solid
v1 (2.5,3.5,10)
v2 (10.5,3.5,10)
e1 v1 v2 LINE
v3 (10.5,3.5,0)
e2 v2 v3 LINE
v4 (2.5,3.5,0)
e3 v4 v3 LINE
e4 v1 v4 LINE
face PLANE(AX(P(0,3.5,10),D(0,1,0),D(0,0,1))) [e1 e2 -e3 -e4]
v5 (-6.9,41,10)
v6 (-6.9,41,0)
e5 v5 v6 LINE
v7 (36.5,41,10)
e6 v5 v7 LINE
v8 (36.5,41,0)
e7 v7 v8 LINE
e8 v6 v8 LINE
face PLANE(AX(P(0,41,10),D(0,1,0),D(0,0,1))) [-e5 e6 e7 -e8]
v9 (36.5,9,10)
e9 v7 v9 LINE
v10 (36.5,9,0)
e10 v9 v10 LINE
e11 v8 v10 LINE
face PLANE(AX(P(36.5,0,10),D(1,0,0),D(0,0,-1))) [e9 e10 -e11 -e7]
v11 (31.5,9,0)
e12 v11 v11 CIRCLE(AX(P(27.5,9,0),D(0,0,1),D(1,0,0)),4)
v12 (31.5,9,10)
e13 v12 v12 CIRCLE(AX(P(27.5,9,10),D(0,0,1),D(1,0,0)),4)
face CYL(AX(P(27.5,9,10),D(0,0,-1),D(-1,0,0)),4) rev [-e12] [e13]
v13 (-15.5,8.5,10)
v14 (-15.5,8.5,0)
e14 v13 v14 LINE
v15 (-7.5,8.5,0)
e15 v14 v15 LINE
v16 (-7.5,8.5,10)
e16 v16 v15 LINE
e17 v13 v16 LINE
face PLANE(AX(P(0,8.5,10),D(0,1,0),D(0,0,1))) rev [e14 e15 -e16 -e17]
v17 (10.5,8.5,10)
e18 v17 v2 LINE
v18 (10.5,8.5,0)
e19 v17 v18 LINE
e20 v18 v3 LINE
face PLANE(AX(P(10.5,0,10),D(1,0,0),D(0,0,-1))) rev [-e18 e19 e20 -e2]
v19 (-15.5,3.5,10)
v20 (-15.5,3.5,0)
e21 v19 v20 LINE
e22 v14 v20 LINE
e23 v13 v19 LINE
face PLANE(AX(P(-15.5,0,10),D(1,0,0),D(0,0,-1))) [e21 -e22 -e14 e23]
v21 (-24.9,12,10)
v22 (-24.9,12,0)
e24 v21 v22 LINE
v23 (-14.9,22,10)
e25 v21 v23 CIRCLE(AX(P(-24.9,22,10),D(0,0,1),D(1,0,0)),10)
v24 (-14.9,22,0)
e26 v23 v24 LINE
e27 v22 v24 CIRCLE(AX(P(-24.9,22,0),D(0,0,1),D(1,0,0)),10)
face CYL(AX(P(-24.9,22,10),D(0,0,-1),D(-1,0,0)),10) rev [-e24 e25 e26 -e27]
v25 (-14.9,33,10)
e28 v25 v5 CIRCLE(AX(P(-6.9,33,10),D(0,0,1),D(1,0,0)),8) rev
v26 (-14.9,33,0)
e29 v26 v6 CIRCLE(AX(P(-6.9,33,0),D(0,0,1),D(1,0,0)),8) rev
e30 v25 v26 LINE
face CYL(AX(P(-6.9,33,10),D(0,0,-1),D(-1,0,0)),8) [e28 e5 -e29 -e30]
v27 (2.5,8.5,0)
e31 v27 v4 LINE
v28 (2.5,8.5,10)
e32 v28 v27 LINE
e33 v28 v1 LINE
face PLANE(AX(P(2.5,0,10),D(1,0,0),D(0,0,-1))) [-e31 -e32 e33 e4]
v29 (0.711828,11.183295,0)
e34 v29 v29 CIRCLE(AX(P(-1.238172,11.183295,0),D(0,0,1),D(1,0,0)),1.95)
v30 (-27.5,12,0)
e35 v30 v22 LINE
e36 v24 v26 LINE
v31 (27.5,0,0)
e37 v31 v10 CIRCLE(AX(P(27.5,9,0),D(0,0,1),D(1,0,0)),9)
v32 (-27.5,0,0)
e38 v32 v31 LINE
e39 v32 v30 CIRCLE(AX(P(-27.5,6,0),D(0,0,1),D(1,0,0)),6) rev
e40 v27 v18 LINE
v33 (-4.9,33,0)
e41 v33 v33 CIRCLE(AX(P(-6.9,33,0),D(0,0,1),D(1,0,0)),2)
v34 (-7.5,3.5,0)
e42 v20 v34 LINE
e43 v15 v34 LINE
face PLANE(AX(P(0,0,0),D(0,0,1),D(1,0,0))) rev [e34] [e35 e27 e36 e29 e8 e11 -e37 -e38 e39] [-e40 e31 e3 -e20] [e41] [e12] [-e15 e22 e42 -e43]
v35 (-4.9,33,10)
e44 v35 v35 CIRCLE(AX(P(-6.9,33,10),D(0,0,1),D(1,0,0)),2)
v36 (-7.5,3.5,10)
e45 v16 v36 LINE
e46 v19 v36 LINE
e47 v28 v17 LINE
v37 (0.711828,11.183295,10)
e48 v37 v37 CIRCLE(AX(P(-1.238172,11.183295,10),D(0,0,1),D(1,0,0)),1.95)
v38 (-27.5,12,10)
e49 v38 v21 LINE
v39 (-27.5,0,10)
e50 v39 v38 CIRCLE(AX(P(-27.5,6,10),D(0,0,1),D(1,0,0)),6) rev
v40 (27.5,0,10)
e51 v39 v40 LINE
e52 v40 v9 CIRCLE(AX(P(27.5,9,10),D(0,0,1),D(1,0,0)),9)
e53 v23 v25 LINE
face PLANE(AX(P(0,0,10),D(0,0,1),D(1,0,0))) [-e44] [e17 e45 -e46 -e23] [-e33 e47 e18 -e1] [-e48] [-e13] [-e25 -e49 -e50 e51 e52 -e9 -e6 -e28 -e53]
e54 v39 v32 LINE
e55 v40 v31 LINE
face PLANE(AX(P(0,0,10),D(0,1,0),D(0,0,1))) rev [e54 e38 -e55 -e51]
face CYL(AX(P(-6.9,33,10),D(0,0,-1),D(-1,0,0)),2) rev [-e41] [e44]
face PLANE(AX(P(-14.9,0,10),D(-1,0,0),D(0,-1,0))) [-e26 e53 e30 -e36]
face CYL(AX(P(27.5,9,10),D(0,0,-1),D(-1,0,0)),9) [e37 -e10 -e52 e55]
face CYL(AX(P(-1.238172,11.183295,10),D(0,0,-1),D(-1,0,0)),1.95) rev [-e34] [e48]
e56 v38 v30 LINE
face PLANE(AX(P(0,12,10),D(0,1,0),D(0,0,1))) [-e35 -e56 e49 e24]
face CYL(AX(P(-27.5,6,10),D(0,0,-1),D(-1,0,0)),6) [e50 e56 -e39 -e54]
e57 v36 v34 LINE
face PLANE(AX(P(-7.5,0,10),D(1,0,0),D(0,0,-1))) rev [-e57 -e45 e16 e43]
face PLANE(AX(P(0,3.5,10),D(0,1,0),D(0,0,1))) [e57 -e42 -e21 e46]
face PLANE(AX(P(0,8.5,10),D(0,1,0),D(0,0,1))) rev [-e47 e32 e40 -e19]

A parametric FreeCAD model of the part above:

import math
import FreeCAD as App
import Part
import Sketcher

V = App.Vector


def add_polygon(sketch, points):
    """Adds a closed chain of lines whose ends are joined by coincident constraints."""
    first, n = sketch.GeometryCount, len(points)
    for a, b in zip(points, points[1:] + points[:1]):
        sketch.addGeometry(Part.LineSegment(App.Vector(*a, 0), App.Vector(*b, 0)), False)
    for i in range(n):
        sketch.addConstraint(Sketcher.Constraint("Coincident", first + i, 2, first + (i + 1) % n, 1))

doc = App.newDocument("Part")
body = doc.addObject("PartDesign::Body", "Body")

# Sketch on XY plane
sketch1 = doc.addObject("Sketcher::SketchObject", "Sketch")
body.addObject(sketch1)
sketch1.AttachmentSupport = (doc.XY_Plane, [""])
sketch1.MapMode = "FlatFace"
sketch1.addGeometry(Part.LineSegment(V(36.5, 9, 0), V(36.5, 41, 0)), False)  # 0
sketch1.addGeometry(Part.LineSegment(V(36.5, 41, 0), V(-6.9, 41, 0)), False)  # 1
sketch1.addGeometry(Part.ArcOfCircle(Part.Circle(V(-6.9, 33, 0), V(0, 0, 1), 8), math.radians(90), math.radians(180)), False)  # 2
sketch1.addGeometry(Part.LineSegment(V(-14.9, 33, 0), V(-14.9, 22, 0)), False)  # 3
sketch1.addGeometry(Part.ArcOfCircle(Part.Circle(V(-24.9, 22, 0), V(0, 0, 1), 10), math.radians(-90), math.radians(0)), False)  # 4
sketch1.addGeometry(Part.LineSegment(V(-24.9, 12, 0), V(-27.5, 12, 0)), False)  # 5
sketch1.addGeometry(Part.ArcOfCircle(Part.Circle(V(-27.5, 6, 0), V(0, 0, 1), 6), math.radians(90), math.radians(270)), False)  # 6
sketch1.addGeometry(Part.LineSegment(V(-27.5, 0, 0), V(27.5, 0, 0)), False)  # 7
sketch1.addGeometry(Part.ArcOfCircle(Part.Circle(V(27.5, 9, 0), V(0, 0, 1), 9), math.radians(-90), math.radians(0)), False)  # 8
add_polygon(sketch1, [(-7.5, 3.5), (-15.5, 3.5), (-15.5, 8.5), (-7.5, 8.5)])  # lines 9-12
add_polygon(sketch1, [(10.5, 3.5), (2.5, 3.5), (2.5, 8.5), (10.5, 8.5)])  # lines 13-16
sketch1.addGeometry(Part.Circle(V(-1.2, 11.2, 0), V(0, 0, 1), 1.9), False)  # 17
sketch1.addGeometry(Part.Circle(V(27.5, 9, 0), V(0, 0, 1), 4), False)  # 18
sketch1.addGeometry(Part.Circle(V(-6.9, 33, 0), V(0, 0, 1), 2), False)  # 19
sketch1.addConstraint(Sketcher.Constraint("Coincident", 0, 2, 1, 1))
sketch1.addConstraint(Sketcher.Constraint("Tangent", 1, 2, 2, 1))
sketch1.addConstraint(Sketcher.Constraint("Tangent", 2, 2, 3, 1))
sketch1.addConstraint(Sketcher.Constraint("Tangent", 3, 2, 4, 2))
sketch1.addConstraint(Sketcher.Constraint("Tangent", 4, 1, 5, 1))
sketch1.addConstraint(Sketcher.Constraint("Tangent", 5, 2, 6, 1))
sketch1.addConstraint(Sketcher.Constraint("Tangent", 6, 2, 7, 1))
sketch1.addConstraint(Sketcher.Constraint("Tangent", 7, 2, 8, 1))
sketch1.addConstraint(Sketcher.Constraint("Tangent", 8, 2, 0, 1))
sketch1.addConstraint(Sketcher.Constraint("Vertical", 0))
sketch1.addConstraint(Sketcher.Constraint("Horizontal", 1))
sketch1.addConstraint(Sketcher.Constraint("Vertical", 3))
sketch1.addConstraint(Sketcher.Constraint("Horizontal", 5))
sketch1.addConstraint(Sketcher.Constraint("Horizontal", 7))
sketch1.addConstraint(Sketcher.Constraint("Horizontal", 9))
sketch1.addConstraint(Sketcher.Constraint("Vertical", 10))
sketch1.addConstraint(Sketcher.Constraint("Horizontal", 11))
sketch1.addConstraint(Sketcher.Constraint("Vertical", 12))
sketch1.addConstraint(Sketcher.Constraint("Horizontal", 13))
sketch1.addConstraint(Sketcher.Constraint("Vertical", 14))
sketch1.addConstraint(Sketcher.Constraint("Horizontal", 15))
sketch1.addConstraint(Sketcher.Constraint("Vertical", 16))
sketch1.addConstraint(Sketcher.Constraint("Coincident", 18, 3, 8, 3))
sketch1.addConstraint(Sketcher.Constraint("Coincident", 19, 3, 2, 3))
sketch1.addConstraint(Sketcher.Constraint("Symmetric", 6, 2, 7, 2, -1, 1))
sketch1.addConstraint(Sketcher.Constraint("Horizontal", 12, 2, 13, 2))
sketch1.addConstraint(Sketcher.Constraint("Horizontal", 11, 2, 14, 2))
sketch1.addConstraint(Sketcher.Constraint("Equal", 11, 13))
sketch1.addConstraint(Sketcher.Constraint("Diameter", 18, 8.0))
sketch1.addConstraint(Sketcher.Constraint("Diameter", 19, 4.0))
sketch1.addConstraint(Sketcher.Constraint("Radius", 2, 8.0))
sketch1.addConstraint(Sketcher.Constraint("Radius", 4, 10.0))
sketch1.addConstraint(Sketcher.Constraint("Radius", 6, 6.0))
sketch1.addConstraint(Sketcher.Constraint("Radius", 8, 9.0))
sketch1.addConstraint(Sketcher.Constraint("Diameter", 17, 3.9))
sketch1.addConstraint(Sketcher.Constraint("DistanceX", 7, 1, 7, 2, 55.0))
sketch1.addConstraint(Sketcher.Constraint("DistanceX", 9, 2, 9, 1, 8.0))
sketch1.addConstraint(Sketcher.Constraint("DistanceY", 0, 1, 0, 2, 32.0))
sketch1.addConstraint(Sketcher.Constraint("DistanceY", 10, 1, 10, 2, 5.0))
sketch1.addConstraint(Sketcher.Constraint("DistanceX", 1, 2, 1, 1, 43.4))
sketch1.addConstraint(Sketcher.Constraint("DistanceX", 6, 3, 9, 2, 12.0))
sketch1.addConstraint(Sketcher.Constraint("DistanceX", 12, 2, 13, 2, 10.0))
sketch1.addConstraint(Sketcher.Constraint("DistanceY", -1, 1, 9, 2, 3.5))
sketch1.addConstraint(Sketcher.Constraint("DistanceX", 17, 3, -1, 1, 1.238172))
sketch1.addConstraint(Sketcher.Constraint("DistanceY", -1, 1, 17, 3, 11.183295))
pad1 = doc.addObject("PartDesign::Pad", "Pad")
body.addObject(pad1)
pad1.Profile = sketch1
pad1.Length = 10

doc.recompute()
